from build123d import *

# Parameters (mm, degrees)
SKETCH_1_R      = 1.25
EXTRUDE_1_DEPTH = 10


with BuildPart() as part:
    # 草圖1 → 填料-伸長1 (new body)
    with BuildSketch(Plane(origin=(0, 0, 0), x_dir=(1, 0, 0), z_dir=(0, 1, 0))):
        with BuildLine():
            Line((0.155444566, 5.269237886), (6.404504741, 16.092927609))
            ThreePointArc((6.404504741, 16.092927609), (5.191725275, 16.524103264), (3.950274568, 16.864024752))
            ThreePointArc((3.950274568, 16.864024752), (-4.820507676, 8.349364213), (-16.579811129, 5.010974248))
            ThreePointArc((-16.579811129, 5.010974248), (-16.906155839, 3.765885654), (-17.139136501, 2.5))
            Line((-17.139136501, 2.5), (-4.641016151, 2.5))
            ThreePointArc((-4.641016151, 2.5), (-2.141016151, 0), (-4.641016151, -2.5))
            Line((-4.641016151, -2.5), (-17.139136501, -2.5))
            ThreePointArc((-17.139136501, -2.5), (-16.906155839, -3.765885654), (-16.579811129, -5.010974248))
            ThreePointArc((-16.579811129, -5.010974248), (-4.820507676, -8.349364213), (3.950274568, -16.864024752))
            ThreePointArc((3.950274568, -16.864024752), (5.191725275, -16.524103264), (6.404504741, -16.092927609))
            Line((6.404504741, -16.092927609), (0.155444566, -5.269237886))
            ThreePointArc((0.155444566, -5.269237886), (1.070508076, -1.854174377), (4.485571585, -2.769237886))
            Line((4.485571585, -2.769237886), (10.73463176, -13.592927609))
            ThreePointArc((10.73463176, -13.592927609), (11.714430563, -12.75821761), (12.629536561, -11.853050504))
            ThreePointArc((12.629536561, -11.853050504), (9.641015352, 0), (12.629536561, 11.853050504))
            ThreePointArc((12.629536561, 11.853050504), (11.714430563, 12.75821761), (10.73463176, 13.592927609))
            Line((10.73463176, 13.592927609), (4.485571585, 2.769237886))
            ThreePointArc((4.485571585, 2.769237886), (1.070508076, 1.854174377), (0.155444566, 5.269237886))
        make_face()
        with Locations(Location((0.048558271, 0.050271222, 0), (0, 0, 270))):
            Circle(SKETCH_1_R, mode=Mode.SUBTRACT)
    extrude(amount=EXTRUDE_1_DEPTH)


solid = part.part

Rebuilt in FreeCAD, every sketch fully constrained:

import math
import FreeCAD as App
import Part
import Sketcher
Q = App.Units.Quantity

doc = App.newDocument("Part")
body = doc.addObject("PartDesign::Body", "Body")

# Sketch on XZ plane
sketch1 = body.newObject("Sketcher::SketchObject", "Sketch")
sketch1.AttachmentSupport = (doc.getObject("XZ_Plane"), [""])
sketch1.MapMode = "FlatFace"
sketch1.addGeometry([
    Part.LineSegment(App.Vector(0.155445, -5.269238, 0), App.Vector(6.404505, -16.092928, 0)),  # 0
    Part.ArcOfCircle(Part.Circle(App.Vector(0, 0, 0), App.Vector(0, 0, 1), 17.320508), math.radians(-76.816575), math.radians(-68.298921)),  # 1
    Part.ArcOfCircle(Part.Circle(App.Vector(-17.320508, -30, 0), App.Vector(0, 0, 1), 25.000001), math.radians(31.697801), math.radians(88.302199)),  # 2
    Part.ArcOfCircle(Part.Circle(App.Vector(0, 0, 0), App.Vector(0, 0, 1), 17.320508), math.radians(-171.701079), math.radians(-163.183425)),  # 3
    Part.LineSegment(App.Vector(-17.139137, -2.5, 0), App.Vector(-4.641016, -2.5, 0)),  # 4
    Part.ArcOfCircle(Part.Circle(App.Vector(-4.641016, 0, 0), App.Vector(0, 0, 1), 2.5), math.radians(-90), math.radians(90)),  # 5
    Part.LineSegment(App.Vector(-4.641016, 2.5, 0), App.Vector(-17.139137, 2.5, 0)),  # 6
    Part.ArcOfCircle(Part.Circle(App.Vector(0, 0, 0), App.Vector(0, 0, 1), 17.320508), math.radians(163.183425), math.radians(171.701079)),  # 7
    Part.ArcOfCircle(Part.Circle(App.Vector(-17.320508, 30, 0), App.Vector(0, 0, 1), 25.000001), math.radians(-88.302199), math.radians(-31.697801)),  # 8
    Part.ArcOfCircle(Part.Circle(App.Vector(0, 0, 0), App.Vector(0, 0, 1), 17.320508), math.radians(68.298921), math.radians(76.816575)),  # 9
    Part.LineSegment(App.Vector(6.404505, 16.092928, 0), App.Vector(0.155445, 5.269238, 0)),  # 10
    Part.ArcOfCircle(Part.Circle(App.Vector(2.320508, 4.019238, 0), App.Vector(0, 0, 1), 2.5), math.radians(150), math.radians(330)),  # 11
    Part.LineSegment(App.Vector(4.485572, 2.769238, 0), App.Vector(10.734632, 13.592928, 0)),  # 12
    Part.ArcOfCircle(Part.Circle(App.Vector(0, 0, 0), App.Vector(0, 0, 1), 17.320508), math.radians(43.183425), math.radians(51.701079)),  # 13
    Part.ArcOfCircle(Part.Circle(App.Vector(34.641016, 0, 0), App.Vector(0, 0, 1), 25.000001), math.radians(151.697801), math.radians(208.302199)),  # 14
    Part.ArcOfCircle(Part.Circle(App.Vector(0, 0, 0), App.Vector(0, 0, 1), 17.320508), math.radians(-51.701079), math.radians(-43.183425)),  # 15
    Part.LineSegment(App.Vector(10.734632, -13.592928, 0), App.Vector(4.485572, -2.769238, 0)),  # 16
    Part.ArcOfCircle(Part.Circle(App.Vector(2.320508, -4.019238, 0), App.Vector(0, 0, 1), 2.5), math.radians(30), math.radians(210)),  # 17
    Part.Circle(App.Vector(0.048558, -0.050271, 0), App.Vector(0, 0, 1), 1.25),  # 18
], False)
sketch1.addConstraint([
    Sketcher.Constraint("Coincident", 0, 2, 1, 2),
    Sketcher.Constraint("Coincident", 1, 1, 2, 1),
    Sketcher.Constraint("Coincident", 2, 2, 3, 2),
    Sketcher.Constraint("Coincident", 3, 1, 4, 1),
    Sketcher.Constraint("Tangent", 4, 2, 5, 1),
    Sketcher.Constraint("Tangent", 5, 2, 6, 1),
    Sketcher.Constraint("Coincident", 6, 2, 7, 2),
    Sketcher.Constraint("Coincident", 7, 1, 8, 1),
    Sketcher.Constraint("Coincident", 8, 2, 9, 2),
    Sketcher.Constraint("Coincident", 9, 1, 10, 1),
    Sketcher.Constraint("Tangent", 10, 2, 11, 1),
    Sketcher.Constraint("Tangent", 11, 2, 12, 1),
    Sketcher.Constraint("Coincident", 12, 2, 13, 2),
    Sketcher.Constraint("Coincident", 13, 1, 14, 1),
    Sketcher.Constraint("Coincident", 14, 2, 15, 2),
    Sketcher.Constraint("Coincident", 15, 1, 16, 1),
    Sketcher.Constraint("Tangent", 16, 2, 17, 1),
    Sketcher.Constraint("Tangent", 17, 2, 0, 1),
    Sketcher.Constraint("Horizontal", 4),
    Sketcher.Constraint("Horizontal", 6),
    Sketcher.Constraint("Coincident", 1, 3, -1, 1),
    Sketcher.Constraint("Coincident", 3, 3, -1, 1),
    Sketcher.Constraint("Coincident", 7, 3, -1, 1),
    Sketcher.Constraint("Coincident", 9, 3, -1, 1),
    Sketcher.Constraint("Coincident", 13, 3, -1, 1),
    Sketcher.Constraint("Coincident", 15, 3, -1, 1),
    Sketcher.Constraint("Equal", 1, 3),
    Sketcher.Constraint("Equal", 3, 7),
    Sketcher.Constraint("Equal", 2, 8),
    Sketcher.Constraint("Equal", 7, 9),
    Sketcher.Constraint("Equal", 5, 11),
    Sketcher.Constraint("Equal", 9, 13),
    Sketcher.Constraint("Equal", 8, 14),
    Sketcher.Constraint("Equal", 13, 15),
    Sketcher.Constraint("Equal", 11, 17),
    Sketcher.Constraint("Symmetric", 2, 3, 8, 3, -1),
    Sketcher.Constraint("Symmetric", 11, 3, 17, 3, -1),
    Sketcher.Constraint("PointOnObject", 5, 3, -1),
    Sketcher.Constraint("PointOnObject", 14, 3, -1),
    Sketcher.Constraint("Parallel", 10, 12),
    Sketcher.Constraint("Parallel", 0, 16),
    Sketcher.Constraint("Vertical", 0, 2, 9, 1),
    Sketcher.Constraint("Equal", 10, 12),
    Sketcher.Constraint("Radius", 2, Q("25.000001 mm")),
    Sketcher.Constraint("Diameter", 18, Q("2.5 mm")),
    Sketcher.Constraint("Radius", 5, Q("2.5 mm")),
    Sketcher.Constraint("Angle", 0, Q("-60 deg")),
    Sketcher.Constraint("DistanceY", 2, 3, -1, 1, Q("30 mm")),
    Sketcher.Constraint("Radius", 13, Q("17.320508 mm")),
    Sketcher.Constraint("DistanceX", 4, 1, 4, 2, Q("12.49812 mm")),
    Sketcher.Constraint("Distance", 0, Q("12.49812 mm")),
    Sketcher.Constraint("DistanceX", 2, 3, -1, 1, Q("17.320508 mm")),
    Sketcher.Constraint("DistanceX", -1, 1, 18, 3, Q("0.048558 mm")),
    Sketcher.Constraint("DistanceY", 18, 3, -1, 1, Q("0.050271 mm")),
    Sketcher.Constraint("DistanceY", -1, 1, 13, 1, Q("11.853051 mm")),
])
pad1 = body.newObject("PartDesign::Pad", "Pad")
pad1.Profile = sketch1
pad1.Length = 10
pad1.Reversed = True

doc.recompute()
